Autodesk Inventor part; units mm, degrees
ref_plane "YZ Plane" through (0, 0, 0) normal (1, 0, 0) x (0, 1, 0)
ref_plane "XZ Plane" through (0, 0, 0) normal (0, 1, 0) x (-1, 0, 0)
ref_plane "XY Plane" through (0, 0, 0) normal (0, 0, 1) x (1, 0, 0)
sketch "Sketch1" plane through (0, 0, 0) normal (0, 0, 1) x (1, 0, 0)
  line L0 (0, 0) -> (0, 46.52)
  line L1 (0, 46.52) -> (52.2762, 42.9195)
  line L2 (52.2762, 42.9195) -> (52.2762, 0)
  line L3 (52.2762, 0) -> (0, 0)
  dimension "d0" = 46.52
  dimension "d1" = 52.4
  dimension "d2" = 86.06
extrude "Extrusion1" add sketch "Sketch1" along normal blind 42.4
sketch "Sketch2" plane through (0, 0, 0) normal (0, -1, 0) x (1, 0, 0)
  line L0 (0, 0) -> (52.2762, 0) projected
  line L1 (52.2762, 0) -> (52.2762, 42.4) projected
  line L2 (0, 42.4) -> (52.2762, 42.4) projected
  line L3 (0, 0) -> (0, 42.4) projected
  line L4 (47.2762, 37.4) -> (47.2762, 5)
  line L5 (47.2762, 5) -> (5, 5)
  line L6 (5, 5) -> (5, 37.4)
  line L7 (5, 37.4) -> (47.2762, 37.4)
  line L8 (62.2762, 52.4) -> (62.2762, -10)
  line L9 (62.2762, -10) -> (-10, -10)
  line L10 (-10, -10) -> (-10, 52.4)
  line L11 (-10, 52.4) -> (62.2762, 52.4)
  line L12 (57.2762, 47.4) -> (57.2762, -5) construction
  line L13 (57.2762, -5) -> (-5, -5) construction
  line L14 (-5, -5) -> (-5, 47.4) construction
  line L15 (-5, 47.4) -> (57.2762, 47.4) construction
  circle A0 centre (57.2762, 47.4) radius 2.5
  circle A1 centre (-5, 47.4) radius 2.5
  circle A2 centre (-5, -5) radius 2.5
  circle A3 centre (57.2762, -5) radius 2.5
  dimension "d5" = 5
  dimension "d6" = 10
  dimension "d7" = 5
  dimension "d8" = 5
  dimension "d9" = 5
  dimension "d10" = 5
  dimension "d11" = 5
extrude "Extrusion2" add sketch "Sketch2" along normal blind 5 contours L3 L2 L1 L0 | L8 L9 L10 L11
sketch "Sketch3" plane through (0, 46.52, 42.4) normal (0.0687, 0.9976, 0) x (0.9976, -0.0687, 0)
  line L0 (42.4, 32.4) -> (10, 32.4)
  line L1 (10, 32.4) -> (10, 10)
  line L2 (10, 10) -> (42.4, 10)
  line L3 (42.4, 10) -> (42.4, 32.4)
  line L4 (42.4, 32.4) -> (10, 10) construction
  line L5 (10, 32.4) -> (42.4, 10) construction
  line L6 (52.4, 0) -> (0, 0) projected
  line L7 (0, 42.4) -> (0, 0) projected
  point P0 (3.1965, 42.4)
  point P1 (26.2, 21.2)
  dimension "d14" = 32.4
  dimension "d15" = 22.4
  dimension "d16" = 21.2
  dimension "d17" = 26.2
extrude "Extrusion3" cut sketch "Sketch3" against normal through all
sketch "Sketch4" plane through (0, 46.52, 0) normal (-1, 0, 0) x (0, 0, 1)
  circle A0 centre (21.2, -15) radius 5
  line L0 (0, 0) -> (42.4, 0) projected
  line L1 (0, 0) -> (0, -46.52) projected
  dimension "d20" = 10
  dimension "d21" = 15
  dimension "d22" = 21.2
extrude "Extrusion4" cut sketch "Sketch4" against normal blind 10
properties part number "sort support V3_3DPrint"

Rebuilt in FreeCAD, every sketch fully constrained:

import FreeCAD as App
import Part
import Sketcher

V = App.Vector
Q = App.Units.Quantity

doc = App.newDocument("Part")
body = doc.addObject("PartDesign::Body", "Body")

# Sketch on XY plane
sketch1 = body.newObject("Sketcher::SketchObject", "Sketch")
sketch1.AttachmentSupport = (doc.getObject("XY_Plane"), [""])
sketch1.MapMode = "FlatFace"
sketch1.addGeometry(Part.LineSegment(V(0, 46.52, 0), V(0, 0, 0)), False)
sketch1.addGeometry(Part.LineSegment(V(0, 0, 0), V(52.2762, 0, 0)), False)
sketch1.addGeometry(Part.LineSegment(V(52.2762, 0, 0), V(52.2762, 42.9195, 0)), False)
sketch1.addGeometry(Part.LineSegment(V(52.2762, 42.9195, 0), V(0, 46.52, 0)), False)
sketch1.addConstraint(Sketcher.Constraint("Coincident", 0, 2, 1, 1))
sketch1.addConstraint(Sketcher.Constraint("Coincident", 1, 2, 2, 1))
sketch1.addConstraint(Sketcher.Constraint("Coincident", 2, 2, 3, 1))
sketch1.addConstraint(Sketcher.Constraint("Coincident", 3, 2, 0, 1))
sketch1.addConstraint(Sketcher.Constraint("Vertical", 0))
sketch1.addConstraint(Sketcher.Constraint("Horizontal", 1))
sketch1.addConstraint(Sketcher.Constraint("Vertical", 2))
sketch1.addConstraint(Sketcher.Constraint("Coincident", 0, 2, -1, 1))
sketch1.addConstraint(Sketcher.Constraint("Distance", 3, 52.4))
sketch1.addConstraint(Sketcher.Constraint("DistanceY", 0, 2, 0, 1, 46.52))
sketch1.addConstraint(Sketcher.Constraint("Angle", 3, Q("176.06 deg")))
pad1 = body.newObject("PartDesign::Pad", "Pad")
pad1.Profile = sketch1
pad1.Length = 42.4

# Sketch on XZ plane
sketch2 = body.newObject("Sketcher::SketchObject", "Sketch001")
sketch2.AttachmentSupport = (doc.getObject("XZ_Plane"), [""])
sketch2.MapMode = "FlatFace"
sketch2.addGeometry(Part.LineSegment(V(62.2762, -10, 0), V(62.2762, 52.4, 0)), False)
sketch2.addGeometry(Part.LineSegment(V(62.2762, 52.4, 0), V(-10, 52.4, 0)), False)
sketch2.addGeometry(Part.LineSegment(V(-10, 52.4, 0), V(-10, -10, 0)), False)
sketch2.addGeometry(Part.LineSegment(V(-10, -10, 0), V(62.2762, -10, 0)), False)
sketch2.addGeometry(Part.LineSegment(V(5, 37.4, 0), V(47.2762, 37.4, 0)), False)
sketch2.addGeometry(Part.LineSegment(V(47.2762, 37.4, 0), V(47.2762, 5, 0)), False)
sketch2.addGeometry(Part.LineSegment(V(47.2762, 5, 0), V(5, 5, 0)), False)
sketch2.addGeometry(Part.LineSegment(V(5, 5, 0), V(5, 37.4, 0)), False)
sketch2.addGeometry(Part.Circle(V(-5, -5, 0), V(0, 0, 1), 2.5), False)
sketch2.addGeometry(Part.Circle(V(57.2762, -5, 0), V(0, 0, 1), 2.5), False)
sketch2.addGeometry(Part.Circle(V(-5, 47.4, 0), V(0, 0, 1), 2.5), False)
sketch2.addGeometry(Part.Circle(V(57.2762, 47.4, 0), V(0, 0, 1), 2.5), False)
sketch2.addConstraint(Sketcher.Constraint("Coincident", 0, 2, 1, 1))
sketch2.addConstraint(Sketcher.Constraint("Coincident", 1, 2, 2, 1))
sketch2.addConstraint(Sketcher.Constraint("Coincident", 2, 2, 3, 1))
sketch2.addConstraint(Sketcher.Constraint("Coincident", 3, 2, 0, 1))
sketch2.addConstraint(Sketcher.Constraint("Coincident", 4, 2, 5, 1))
sketch2.addConstraint(Sketcher.Constraint("Coincident", 5, 2, 6, 1))
sketch2.addConstraint(Sketcher.Constraint("Coincident", 6, 2, 7, 1))
sketch2.addConstraint(Sketcher.Constraint("Coincident", 7, 2, 4, 1))
sketch2.addConstraint(Sketcher.Constraint("Vertical", 0))
sketch2.addConstraint(Sketcher.Constraint("Horizontal", 1))
sketch2.addConstraint(Sketcher.Constraint("Vertical", 2))
sketch2.addConstraint(Sketcher.Constraint("Horizontal", 3))
sketch2.addConstraint(Sketcher.Constraint("Horizontal", 4))
sketch2.addConstraint(Sketcher.Constraint("Vertical", 5))
sketch2.addConstraint(Sketcher.Constraint("Horizontal", 6))
sketch2.addConstraint(Sketcher.Constraint("Vertical", 7))
sketch2.addConstraint(Sketcher.Constraint("Equal", 8, 9))
sketch2.addConstraint(Sketcher.Constraint("Equal", 9, 10))
sketch2.addConstraint(Sketcher.Constraint("Equal", 10, 11))
sketch2.addConstraint(Sketcher.Constraint("Horizontal", 8, 3, 9, 3))
sketch2.addConstraint(Sketcher.Constraint("Horizontal", 10, 3, 11, 3))
sketch2.addConstraint(Sketcher.Constraint("Vertical", 8, 3, 10, 3))
sketch2.addConstraint(Sketcher.Constraint("Vertical", 9, 3, 11, 3))
sketch2.addConstraint(Sketcher.Constraint("Diameter", 8, 5.0))
sketch2.addConstraint(Sketcher.Constraint("DistanceX", 8, 3, -1, 1, 5.0))
sketch2.addConstraint(Sketcher.Constraint("DistanceY", 8, 3, -1, 1, 5.0))
sketch2.addConstraint(Sketcher.Constraint("DistanceX", 1, 2, -1, 1, 10.0))
sketch2.addConstraint(Sketcher.Constraint("DistanceY", 2, 2, -1, 1, 10.0))
sketch2.addConstraint(Sketcher.Constraint("DistanceY", -1, 1, 5, 2, 5.0))
sketch2.addConstraint(Sketcher.Constraint("DistanceX", -1, 1, 6, 2, 5.0))
sketch2.addConstraint(Sketcher.Constraint("DistanceX", 11, 3, 0, 2, 5.0))
sketch2.addConstraint(Sketcher.Constraint("DistanceY", 11, 3, 0, 2, 5.0))
sketch2.addConstraint(Sketcher.Constraint("DistanceX", 4, 2, 11, 3, 10.0))
sketch2.addConstraint(Sketcher.Constraint("DistanceY", 4, 2, 11, 3, 10.0))
sketch2.addConstraint(Sketcher.Constraint("DistanceY", 0, 1, 0, 2, 62.4))
sketch2.addConstraint(Sketcher.Constraint("DistanceX", 1, 2, 1, 1, 72.2762))
pad2 = body.newObject("PartDesign::Pad", "Pad001")
pad2.Profile = sketch2
pad2.Length = 5

# Sketch on an angled plane
sketch3 = body.newObject("Sketcher::SketchObject", "Sketch002")
sketch3.Placement = App.Placement(V(0, 46.52, 42.4), App.Rotation(V(0.997637188, -0.068702561, 0), V(0, 0, -1.000000001), V(0.068702561, 0.997637188, 0), "ZXY"))
sketch3.addGeometry(Part.LineSegment(V(42.4, 10, 0), V(42.4, 32.4, 0)), False)
sketch3.addGeometry(Part.LineSegment(V(42.4, 32.4, 0), V(10, 32.4, 0)), False)
sketch3.addGeometry(Part.LineSegment(V(10, 32.4, 0), V(10, 10, 0)), False)
sketch3.addGeometry(Part.LineSegment(V(10, 10, 0), V(42.4, 10, 0)), False)
sketch3.addConstraint(Sketcher.Constraint("Coincident", 0, 2, 1, 1))
sketch3.addConstraint(Sketcher.Constraint("Coincident", 1, 2, 2, 1))
sketch3.addConstraint(Sketcher.Constraint("Coincident", 2, 2, 3, 1))
sketch3.addConstraint(Sketcher.Constraint("Coincident", 3, 2, 0, 1))
sketch3.addConstraint(Sketcher.Constraint("Vertical", 0))
sketch3.addConstraint(Sketcher.Constraint("Horizontal", 1))
sketch3.addConstraint(Sketcher.Constraint("Vertical", 2))
sketch3.addConstraint(Sketcher.Constraint("Horizontal", 3))
sketch3.addConstraint(Sketcher.Constraint("DistanceX", 1, 2, 1, 1, 32.4))
sketch3.addConstraint(Sketcher.Constraint("DistanceY", 0, 1, 0, 2, 22.4))
sketch3.addConstraint(Sketcher.Constraint("DistanceY", -1, 1, 0, 2, 32.4))
sketch3.addConstraint(Sketcher.Constraint("DistanceX", -1, 1, 1, 2, 10.0))
pocket1 = body.newObject("PartDesign::Pocket", "Pocket")
pocket1.Profile = sketch3
pocket1.Type = "ThroughAll"

# Sketch on YZ plane
sketch4 = body.newObject("Sketcher::SketchObject", "Sketch003")
sketch4.AttachmentSupport = (doc.getObject("YZ_Plane"), [""])
sketch4.MapMode = "FlatFace"
sketch4.addGeometry(Part.Circle(V(31.52, 21.2, 0), V(0, 0, 1), 5), False)
sketch4.addConstraint(Sketcher.Constraint("Diameter", 0, 10.0))
sketch4.addConstraint(Sketcher.Constraint("DistanceY", -1, 1, 0, 3, 21.2))
sketch4.addConstraint(Sketcher.Constraint("DistanceX", -1, 1, 0, 3, 31.52))
pocket2 = body.newObject("PartDesign::Pocket", "Pocket001")
pocket2.Profile = sketch4
pocket2.Length = 10
pocket2.Reversed = True

doc.recompute()
